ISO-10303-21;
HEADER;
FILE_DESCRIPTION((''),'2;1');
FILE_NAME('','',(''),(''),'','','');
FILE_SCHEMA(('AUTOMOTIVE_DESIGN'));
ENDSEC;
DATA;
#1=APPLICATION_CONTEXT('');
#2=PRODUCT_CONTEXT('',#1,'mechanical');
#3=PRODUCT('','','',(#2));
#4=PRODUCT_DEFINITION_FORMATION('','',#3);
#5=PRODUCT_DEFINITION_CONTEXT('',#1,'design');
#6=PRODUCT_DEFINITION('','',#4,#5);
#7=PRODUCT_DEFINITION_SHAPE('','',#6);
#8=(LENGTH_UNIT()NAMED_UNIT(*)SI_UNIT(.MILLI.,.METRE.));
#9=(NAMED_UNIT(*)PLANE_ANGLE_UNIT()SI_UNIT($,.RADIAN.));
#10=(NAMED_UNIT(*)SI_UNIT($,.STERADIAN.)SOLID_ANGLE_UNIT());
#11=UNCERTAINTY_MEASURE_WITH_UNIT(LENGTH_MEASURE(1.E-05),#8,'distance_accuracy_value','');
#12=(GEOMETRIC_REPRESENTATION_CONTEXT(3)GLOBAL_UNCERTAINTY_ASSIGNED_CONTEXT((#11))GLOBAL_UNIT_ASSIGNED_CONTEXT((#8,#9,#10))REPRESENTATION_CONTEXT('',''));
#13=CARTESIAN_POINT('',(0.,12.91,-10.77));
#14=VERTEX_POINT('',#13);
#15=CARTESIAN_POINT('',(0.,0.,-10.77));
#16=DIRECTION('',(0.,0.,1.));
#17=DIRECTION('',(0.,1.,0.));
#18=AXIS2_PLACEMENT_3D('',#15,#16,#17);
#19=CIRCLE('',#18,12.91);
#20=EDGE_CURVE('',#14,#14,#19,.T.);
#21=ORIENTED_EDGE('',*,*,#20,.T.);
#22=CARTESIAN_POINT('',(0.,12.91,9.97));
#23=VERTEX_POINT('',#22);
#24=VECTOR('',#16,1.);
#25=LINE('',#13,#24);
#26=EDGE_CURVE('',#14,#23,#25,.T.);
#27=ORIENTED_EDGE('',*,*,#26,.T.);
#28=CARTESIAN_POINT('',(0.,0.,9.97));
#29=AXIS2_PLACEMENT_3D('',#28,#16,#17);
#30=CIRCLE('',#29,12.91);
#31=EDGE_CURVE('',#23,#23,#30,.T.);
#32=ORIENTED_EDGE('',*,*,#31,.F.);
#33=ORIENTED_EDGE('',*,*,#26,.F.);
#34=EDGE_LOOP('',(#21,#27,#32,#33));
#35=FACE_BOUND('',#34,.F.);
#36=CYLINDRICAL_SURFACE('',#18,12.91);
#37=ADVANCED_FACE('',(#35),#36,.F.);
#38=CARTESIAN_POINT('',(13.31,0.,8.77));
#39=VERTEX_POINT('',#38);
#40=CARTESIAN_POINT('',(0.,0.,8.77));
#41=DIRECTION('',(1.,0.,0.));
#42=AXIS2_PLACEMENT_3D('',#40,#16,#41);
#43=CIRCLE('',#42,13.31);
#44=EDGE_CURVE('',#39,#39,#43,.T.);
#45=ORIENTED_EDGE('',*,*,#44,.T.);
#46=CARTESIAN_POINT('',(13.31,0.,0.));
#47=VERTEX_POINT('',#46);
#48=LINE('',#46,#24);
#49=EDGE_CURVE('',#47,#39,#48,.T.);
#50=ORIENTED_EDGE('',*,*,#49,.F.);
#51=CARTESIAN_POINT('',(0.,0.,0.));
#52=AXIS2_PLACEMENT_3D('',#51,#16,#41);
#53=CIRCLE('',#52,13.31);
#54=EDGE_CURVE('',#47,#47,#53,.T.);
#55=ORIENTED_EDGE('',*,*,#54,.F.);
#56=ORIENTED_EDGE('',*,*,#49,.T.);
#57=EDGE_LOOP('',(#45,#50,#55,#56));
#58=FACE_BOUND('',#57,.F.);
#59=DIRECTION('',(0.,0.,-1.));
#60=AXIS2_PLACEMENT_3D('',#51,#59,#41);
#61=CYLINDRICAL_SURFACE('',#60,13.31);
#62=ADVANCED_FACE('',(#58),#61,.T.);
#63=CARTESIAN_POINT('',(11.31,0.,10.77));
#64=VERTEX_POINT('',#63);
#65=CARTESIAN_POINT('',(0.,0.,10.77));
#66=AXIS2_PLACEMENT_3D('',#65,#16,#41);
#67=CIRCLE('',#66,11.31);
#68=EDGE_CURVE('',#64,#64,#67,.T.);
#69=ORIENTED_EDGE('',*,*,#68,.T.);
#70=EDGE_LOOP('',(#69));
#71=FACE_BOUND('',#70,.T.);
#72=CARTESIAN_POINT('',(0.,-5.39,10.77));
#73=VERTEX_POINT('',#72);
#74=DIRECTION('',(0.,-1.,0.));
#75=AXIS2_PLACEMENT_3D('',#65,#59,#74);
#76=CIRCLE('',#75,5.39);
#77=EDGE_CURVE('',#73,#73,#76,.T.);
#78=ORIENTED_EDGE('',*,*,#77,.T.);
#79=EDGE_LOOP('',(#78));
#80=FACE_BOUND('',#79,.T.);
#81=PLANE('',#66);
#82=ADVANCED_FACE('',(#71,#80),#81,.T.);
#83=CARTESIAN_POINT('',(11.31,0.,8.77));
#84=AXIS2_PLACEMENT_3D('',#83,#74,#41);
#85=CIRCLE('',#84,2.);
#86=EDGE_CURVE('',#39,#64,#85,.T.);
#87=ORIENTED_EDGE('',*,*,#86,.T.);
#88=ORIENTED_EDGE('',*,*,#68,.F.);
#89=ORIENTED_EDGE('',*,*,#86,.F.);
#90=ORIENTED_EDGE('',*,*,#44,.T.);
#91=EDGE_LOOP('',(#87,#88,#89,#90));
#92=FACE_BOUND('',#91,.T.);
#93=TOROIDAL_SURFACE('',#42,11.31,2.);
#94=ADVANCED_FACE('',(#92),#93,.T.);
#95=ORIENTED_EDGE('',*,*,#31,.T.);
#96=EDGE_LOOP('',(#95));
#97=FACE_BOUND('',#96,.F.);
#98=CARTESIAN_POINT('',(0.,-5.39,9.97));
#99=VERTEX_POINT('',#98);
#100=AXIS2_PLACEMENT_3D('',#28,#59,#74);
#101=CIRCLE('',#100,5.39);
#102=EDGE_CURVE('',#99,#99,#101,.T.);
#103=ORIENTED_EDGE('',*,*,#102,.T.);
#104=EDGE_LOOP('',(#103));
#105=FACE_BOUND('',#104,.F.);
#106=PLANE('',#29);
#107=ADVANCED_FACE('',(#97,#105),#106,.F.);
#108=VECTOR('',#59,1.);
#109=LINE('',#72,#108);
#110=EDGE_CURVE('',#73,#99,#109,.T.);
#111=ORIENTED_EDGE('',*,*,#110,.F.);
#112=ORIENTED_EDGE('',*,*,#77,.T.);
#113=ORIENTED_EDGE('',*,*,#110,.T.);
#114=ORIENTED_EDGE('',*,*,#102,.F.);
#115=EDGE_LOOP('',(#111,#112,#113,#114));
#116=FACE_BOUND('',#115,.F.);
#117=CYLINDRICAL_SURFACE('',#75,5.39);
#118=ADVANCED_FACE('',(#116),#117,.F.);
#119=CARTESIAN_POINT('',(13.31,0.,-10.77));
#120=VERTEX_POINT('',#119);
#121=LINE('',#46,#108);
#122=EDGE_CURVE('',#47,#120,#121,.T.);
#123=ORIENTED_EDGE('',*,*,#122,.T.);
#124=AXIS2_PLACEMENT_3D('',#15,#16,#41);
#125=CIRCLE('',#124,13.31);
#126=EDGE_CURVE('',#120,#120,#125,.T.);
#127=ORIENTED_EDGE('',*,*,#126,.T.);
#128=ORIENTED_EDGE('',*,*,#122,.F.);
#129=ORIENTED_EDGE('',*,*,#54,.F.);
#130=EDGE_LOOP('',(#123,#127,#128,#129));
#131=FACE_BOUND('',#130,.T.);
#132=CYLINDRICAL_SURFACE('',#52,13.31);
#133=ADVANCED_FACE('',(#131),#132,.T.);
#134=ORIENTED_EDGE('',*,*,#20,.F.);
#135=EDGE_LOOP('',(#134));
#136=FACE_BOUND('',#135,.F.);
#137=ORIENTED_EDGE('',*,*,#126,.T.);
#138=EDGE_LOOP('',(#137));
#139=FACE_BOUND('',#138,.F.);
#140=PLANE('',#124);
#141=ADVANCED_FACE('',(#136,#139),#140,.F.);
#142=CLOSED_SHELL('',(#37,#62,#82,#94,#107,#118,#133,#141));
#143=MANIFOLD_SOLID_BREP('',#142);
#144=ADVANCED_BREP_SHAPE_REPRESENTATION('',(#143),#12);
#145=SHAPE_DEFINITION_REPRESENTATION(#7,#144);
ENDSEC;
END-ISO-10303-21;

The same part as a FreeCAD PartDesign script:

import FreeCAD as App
import Part
import Sketcher

V = App.Vector


def edges_at(feature, points):
    """Names of the edges that pass closest to the given points."""
    edges = feature.Shape.Edges
    near = lambda p: min(range(len(edges)), key=lambda i: edges[i].distToShape(Part.Vertex(*p))[0])
    return sorted({f"Edge{near(p) + 1}" for p in points})

doc = App.newDocument("Part")
body = doc.addObject("PartDesign::Body", "Body")

# Sketch on XY plane
sketch1 = body.newObject("Sketcher::SketchObject", "Sketch")
sketch1.AttachmentSupport = (doc.getObject("XY_Plane"), [""])
sketch1.MapMode = "FlatFace"
sketch1.addGeometry(Part.Circle(V(0, 0, 0), V(0, 0, 1), 13), False)
sketch1.addConstraint([
    Sketcher.Constraint("Coincident", 0, 3, -1, 1),
    Sketcher.Constraint("Diameter", 0, 26.62),
])
pad1 = body.newObject("PartDesign::Pad", "Pad")
pad1.Profile = sketch1
pad1.Length = 21.54
pad1.Midplane = True

# Sketch on XY plane
sketch2 = body.newObject("Sketcher::SketchObject", "Sketch001")
sketch2.AttachmentSupport = (doc.getObject("XY_Plane"), [""])
sketch2.MapMode = "FlatFace"
sketch2.AttachmentOffset = App.Placement(V(0, 0, 10.77), App.Rotation())
sketch2.addGeometry(Part.Circle(V(0, 0, 0), V(0, 0, 1), 5), False)
sketch2.addConstraint([
    Sketcher.Constraint("Coincident", 0, 3, -1, 1),
    Sketcher.Constraint("Diameter", 0, 10.78),
])
doc.recompute()
hole = body.newObject("PartDesign::Hole", "Hole")
hole.Profile = sketch2
hole.ThreadType = "None"
hole.Diameter = 10.78
hole.DepthType = "Dimension"
hole.Depth = 0.8
hole.DrillPoint = "Flat"

# Sketch on XY plane
sketch3 = body.newObject("Sketcher::SketchObject", "Sketch002")
sketch3.AttachmentSupport = (doc.getObject("XY_Plane"), [""])
sketch3.MapMode = "FlatFace"
sketch3.AttachmentOffset = App.Placement(V(0, 0, -10.77), App.Rotation())
sketch3.addGeometry(Part.Circle(V(0, 0, 0), V(0, 0, 1), 13), False)
sketch3.addConstraint([
    Sketcher.Constraint("Coincident", 0, 3, -1, 1),
    Sketcher.Constraint("Diameter", 0, 25.82),
])
doc.recompute()
hole2 = body.newObject("PartDesign::Hole", "Hole001")
hole2.Profile = sketch3
hole2.ThreadType = "None"
hole2.Diameter = 25.82
hole2.DepthType = "Dimension"
hole2.Depth = 20.74
hole2.DrillPoint = "Flat"
hole2.Reversed = True
doc.recompute()

fillet = body.newObject("PartDesign::Fillet", "Fillet")
fillet.Base = (hole2, edges_at(hole2, [(-13.31, 0, 10.77)]))
fillet.Radius = 2

doc.recompute()
